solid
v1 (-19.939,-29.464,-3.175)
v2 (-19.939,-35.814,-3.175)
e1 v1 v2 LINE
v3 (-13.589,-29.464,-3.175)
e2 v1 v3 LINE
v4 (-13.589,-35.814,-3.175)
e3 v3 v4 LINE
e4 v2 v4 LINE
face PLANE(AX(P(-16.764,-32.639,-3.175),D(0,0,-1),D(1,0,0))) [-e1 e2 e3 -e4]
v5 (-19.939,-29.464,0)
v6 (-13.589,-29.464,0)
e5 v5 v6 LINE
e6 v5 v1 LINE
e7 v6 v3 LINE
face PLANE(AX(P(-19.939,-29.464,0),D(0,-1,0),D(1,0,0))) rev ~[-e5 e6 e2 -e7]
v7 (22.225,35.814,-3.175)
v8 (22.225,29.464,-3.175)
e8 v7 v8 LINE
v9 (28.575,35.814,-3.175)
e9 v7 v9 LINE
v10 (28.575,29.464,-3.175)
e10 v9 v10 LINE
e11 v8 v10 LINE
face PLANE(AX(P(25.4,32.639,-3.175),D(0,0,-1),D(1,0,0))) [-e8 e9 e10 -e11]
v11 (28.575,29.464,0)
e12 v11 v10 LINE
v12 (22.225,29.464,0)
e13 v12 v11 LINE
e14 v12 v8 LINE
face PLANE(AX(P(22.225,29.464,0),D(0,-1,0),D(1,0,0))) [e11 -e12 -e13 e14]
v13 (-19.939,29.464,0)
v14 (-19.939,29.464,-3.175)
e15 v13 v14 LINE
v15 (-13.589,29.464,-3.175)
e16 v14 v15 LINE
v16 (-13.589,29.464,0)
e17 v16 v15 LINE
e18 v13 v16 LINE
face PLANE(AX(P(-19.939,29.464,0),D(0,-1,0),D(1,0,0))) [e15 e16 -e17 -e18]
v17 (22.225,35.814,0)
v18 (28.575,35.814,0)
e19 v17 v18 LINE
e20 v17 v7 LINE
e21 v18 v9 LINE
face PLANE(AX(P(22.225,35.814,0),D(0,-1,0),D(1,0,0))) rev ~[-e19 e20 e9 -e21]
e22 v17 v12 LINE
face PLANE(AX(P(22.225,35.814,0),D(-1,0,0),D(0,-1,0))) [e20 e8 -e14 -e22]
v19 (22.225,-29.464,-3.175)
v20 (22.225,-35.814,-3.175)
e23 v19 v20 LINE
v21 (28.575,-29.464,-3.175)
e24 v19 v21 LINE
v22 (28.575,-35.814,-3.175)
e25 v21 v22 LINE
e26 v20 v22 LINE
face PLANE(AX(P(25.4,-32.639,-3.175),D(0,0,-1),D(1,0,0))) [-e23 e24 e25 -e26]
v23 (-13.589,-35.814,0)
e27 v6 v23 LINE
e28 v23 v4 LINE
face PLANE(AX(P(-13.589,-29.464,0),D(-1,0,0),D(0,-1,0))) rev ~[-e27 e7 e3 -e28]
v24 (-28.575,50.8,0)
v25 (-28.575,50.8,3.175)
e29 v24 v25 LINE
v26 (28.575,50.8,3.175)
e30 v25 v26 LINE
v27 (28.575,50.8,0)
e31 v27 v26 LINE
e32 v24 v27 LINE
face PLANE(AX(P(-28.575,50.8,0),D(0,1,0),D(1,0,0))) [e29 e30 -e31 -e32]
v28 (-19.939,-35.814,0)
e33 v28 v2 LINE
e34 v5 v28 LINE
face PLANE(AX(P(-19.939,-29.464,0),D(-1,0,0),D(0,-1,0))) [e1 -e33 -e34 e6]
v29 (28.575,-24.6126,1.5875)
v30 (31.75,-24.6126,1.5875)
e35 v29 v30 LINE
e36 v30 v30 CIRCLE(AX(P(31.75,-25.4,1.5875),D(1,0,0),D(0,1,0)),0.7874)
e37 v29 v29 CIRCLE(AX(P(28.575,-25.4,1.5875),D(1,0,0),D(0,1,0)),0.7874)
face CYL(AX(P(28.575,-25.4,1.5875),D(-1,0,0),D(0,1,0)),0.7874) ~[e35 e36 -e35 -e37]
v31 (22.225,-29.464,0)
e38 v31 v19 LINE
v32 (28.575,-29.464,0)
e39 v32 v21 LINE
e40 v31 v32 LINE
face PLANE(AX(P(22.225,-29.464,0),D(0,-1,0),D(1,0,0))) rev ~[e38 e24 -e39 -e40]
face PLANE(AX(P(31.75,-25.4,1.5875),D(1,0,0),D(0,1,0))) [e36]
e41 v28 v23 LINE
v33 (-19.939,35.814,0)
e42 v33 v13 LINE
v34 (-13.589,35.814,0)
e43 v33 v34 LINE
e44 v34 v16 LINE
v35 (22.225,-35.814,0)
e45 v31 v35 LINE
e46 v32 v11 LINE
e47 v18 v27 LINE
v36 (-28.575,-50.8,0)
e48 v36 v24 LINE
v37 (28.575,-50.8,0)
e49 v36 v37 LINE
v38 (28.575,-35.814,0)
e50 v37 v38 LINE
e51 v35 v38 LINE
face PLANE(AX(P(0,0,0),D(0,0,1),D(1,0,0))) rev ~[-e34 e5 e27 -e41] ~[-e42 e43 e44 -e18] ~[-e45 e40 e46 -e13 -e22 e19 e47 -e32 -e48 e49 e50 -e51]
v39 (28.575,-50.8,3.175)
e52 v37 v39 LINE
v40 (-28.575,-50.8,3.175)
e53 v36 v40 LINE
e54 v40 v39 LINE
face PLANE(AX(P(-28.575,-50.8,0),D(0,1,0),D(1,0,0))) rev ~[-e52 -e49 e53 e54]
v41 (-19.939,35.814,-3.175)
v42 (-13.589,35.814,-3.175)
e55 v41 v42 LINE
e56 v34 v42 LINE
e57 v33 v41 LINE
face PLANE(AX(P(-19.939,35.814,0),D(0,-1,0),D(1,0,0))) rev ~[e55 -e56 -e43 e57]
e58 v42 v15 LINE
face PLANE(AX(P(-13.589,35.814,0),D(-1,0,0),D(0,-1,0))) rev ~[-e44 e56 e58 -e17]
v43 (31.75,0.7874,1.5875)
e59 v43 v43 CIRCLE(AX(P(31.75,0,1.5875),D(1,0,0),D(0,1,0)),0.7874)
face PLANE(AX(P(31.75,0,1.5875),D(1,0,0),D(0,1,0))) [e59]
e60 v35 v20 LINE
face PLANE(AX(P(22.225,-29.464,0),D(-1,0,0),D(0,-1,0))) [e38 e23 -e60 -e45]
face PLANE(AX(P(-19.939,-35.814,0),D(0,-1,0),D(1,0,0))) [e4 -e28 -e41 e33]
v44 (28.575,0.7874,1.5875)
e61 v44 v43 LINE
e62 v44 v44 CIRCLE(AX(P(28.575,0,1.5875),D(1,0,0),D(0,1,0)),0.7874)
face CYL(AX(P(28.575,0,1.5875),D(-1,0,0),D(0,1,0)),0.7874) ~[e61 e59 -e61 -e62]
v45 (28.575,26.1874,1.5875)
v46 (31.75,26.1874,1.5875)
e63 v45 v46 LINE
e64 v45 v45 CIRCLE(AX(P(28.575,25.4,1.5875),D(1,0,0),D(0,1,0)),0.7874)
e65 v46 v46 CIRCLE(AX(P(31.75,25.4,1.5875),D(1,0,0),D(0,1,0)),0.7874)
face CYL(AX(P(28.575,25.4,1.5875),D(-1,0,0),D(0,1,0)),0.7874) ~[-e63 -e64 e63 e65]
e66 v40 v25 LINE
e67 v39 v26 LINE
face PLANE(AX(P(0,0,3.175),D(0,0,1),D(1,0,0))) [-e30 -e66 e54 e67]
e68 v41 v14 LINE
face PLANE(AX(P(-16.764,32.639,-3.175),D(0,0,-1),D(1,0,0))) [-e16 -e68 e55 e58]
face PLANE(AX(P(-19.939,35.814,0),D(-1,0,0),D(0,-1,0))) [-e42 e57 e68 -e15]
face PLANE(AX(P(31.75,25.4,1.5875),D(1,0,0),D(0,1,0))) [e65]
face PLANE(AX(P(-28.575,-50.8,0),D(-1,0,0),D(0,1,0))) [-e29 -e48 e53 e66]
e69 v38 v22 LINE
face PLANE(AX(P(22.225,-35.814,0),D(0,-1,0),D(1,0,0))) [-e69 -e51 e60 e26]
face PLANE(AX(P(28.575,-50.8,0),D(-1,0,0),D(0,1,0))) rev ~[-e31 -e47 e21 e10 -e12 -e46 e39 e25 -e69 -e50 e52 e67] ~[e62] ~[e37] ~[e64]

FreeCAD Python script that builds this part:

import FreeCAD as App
import Part
import Sketcher
from FreeCAD import Vector
Q = App.Units.Quantity


def add_polygon(sketch, points):
    """Adds a closed chain of lines whose ends are joined by coincident constraints."""
    first, n = sketch.GeometryCount, len(points)
    for a, b in zip(points, points[1:] + points[:1]):
        sketch.addGeometry(Part.LineSegment(App.Vector(*a, 0), App.Vector(*b, 0)), False)
    for i in range(n):
        sketch.addConstraint(Sketcher.Constraint("Coincident", first + i, 2, first + (i + 1) % n, 1))

doc = App.newDocument("Part")
body = doc.addObject("PartDesign::Body", "Body")

# Sketch on XY plane
sketch1 = body.newObject("Sketcher::SketchObject", "Sketch")
sketch1.AttachmentSupport = (doc.getObject("XY_Plane"), [""])
sketch1.MapMode = "FlatFace"
add_polygon(sketch1, [(-29, 51), (-29, -51), (29, -51), (29, 51)])  # lines 0-3
sketch1.addConstraint(Sketcher.Constraint("Vertical", 0))
sketch1.addConstraint(Sketcher.Constraint("Horizontal", 1))
sketch1.addConstraint(Sketcher.Constraint("Vertical", 2))
sketch1.addConstraint(Sketcher.Constraint("Horizontal", 3))
sketch1.addConstraint(Sketcher.Constraint("Symmetric", 0, 2, 2, 2, -1, 1))
sketch1.addConstraint(Sketcher.Constraint("DistanceY", 0, 2, 0, 1, Q("4 in")))
sketch1.addConstraint(Sketcher.Constraint("DistanceX", 1, 1, 1, 2, Q("2.25 in")))
pad1 = body.newObject("PartDesign::Pad", "Pad")
pad1.Profile = sketch1
pad1.Length = Q("0.125 in")

# Sketch on YZ plane
sketch2 = body.newObject("Sketcher::SketchObject", "Sketch001")
sketch2.AttachmentSupport = (doc.getObject("YZ_Plane"), [""])
sketch2.MapMode = "FlatFace"
sketch2.AttachmentOffset = App.Placement(Vector(0, 0, 1.125 * 25.4), App.Rotation())
sketch2.addGeometry(Part.Circle(Vector(0, 1.6, 0), Vector(0, 0, 1), 0.8), False)
sketch2.addGeometry(Part.Circle(Vector(25.4, 1.6, 0), Vector(0, 0, 1), 0.8), False)
sketch2.addGeometry(Part.Circle(Vector(-25.4, 1.6, 0), Vector(0, 0, 1), 0.8), False)
sketch2.addConstraint(Sketcher.Constraint("Equal", 0, 1))
sketch2.addConstraint(Sketcher.Constraint("Equal", 1, 2))
sketch2.addConstraint(Sketcher.Constraint("Symmetric", 1, 3, 2, 3, -2))
sketch2.addConstraint(Sketcher.Constraint("PointOnObject", 0, 3, -2))
sketch2.addConstraint(Sketcher.Constraint("Horizontal", 0, 3, 1, 3))
sketch2.addConstraint(Sketcher.Constraint("Diameter", 0, Q("0.062 in")))
sketch2.addConstraint(Sketcher.Constraint("DistanceX", -1, 1, 1, 3, Q("1 in")))
sketch2.addConstraint(Sketcher.Constraint("DistanceY", -1, 1, 0, 3, Q("0.0625 in")))
pad2 = body.newObject("PartDesign::Pad", "Pad001")
pad2.Profile = sketch2
pad2.Length = Q("0.125 in")

# Sketch on XY plane
sketch3 = body.newObject("Sketcher::SketchObject", "Sketch002")
sketch3.AttachmentSupport = (doc.getObject("XY_Plane"), [""])
sketch3.MapMode = "FlatFace"
add_polygon(sketch3, [(-20, -36), (-20, -29), (-14, -29), (-14, -36)])  # lines 0-3
add_polygon(sketch3, [(-20, 29), (-20, 36), (-14, 36), (-14, 29)])  # lines 4-7
add_polygon(sketch3, [(22, 29), (22, 36), (29, 36), (29, 29)])  # lines 8-11
add_polygon(sketch3, [(22, -36), (22, -29), (29, -29), (29, -36)])  # lines 12-15
sketch3.addConstraint(Sketcher.Constraint("Vertical", 0))
sketch3.addConstraint(Sketcher.Constraint("Horizontal", 1))
sketch3.addConstraint(Sketcher.Constraint("Vertical", 2))
sketch3.addConstraint(Sketcher.Constraint("Horizontal", 3))
sketch3.addConstraint(Sketcher.Constraint("Vertical", 4))
sketch3.addConstraint(Sketcher.Constraint("Horizontal", 5))
sketch3.addConstraint(Sketcher.Constraint("Vertical", 6))
sketch3.addConstraint(Sketcher.Constraint("Horizontal", 7))
sketch3.addConstraint(Sketcher.Constraint("Vertical", 8))
sketch3.addConstraint(Sketcher.Constraint("Horizontal", 9))
sketch3.addConstraint(Sketcher.Constraint("Vertical", 10))
sketch3.addConstraint(Sketcher.Constraint("Horizontal", 11))
sketch3.addConstraint(Sketcher.Constraint("Vertical", 12))
sketch3.addConstraint(Sketcher.Constraint("Horizontal", 13))
sketch3.addConstraint(Sketcher.Constraint("Vertical", 14))
sketch3.addConstraint(Sketcher.Constraint("Horizontal", 15))
sketch3.addConstraint(Sketcher.Constraint("Symmetric", 3, 2, 4, 2, -1))
sketch3.addConstraint(Sketcher.Constraint("Symmetric", 1, 2, 6, 2, -1))
sketch3.addConstraint(Sketcher.Constraint("Symmetric", 11, 2, 12, 2, -1))
sketch3.addConstraint(Sketcher.Constraint("Symmetric", 9, 2, 14, 2, -1))
sketch3.addConstraint(Sketcher.Constraint("Horizontal", 5, 2, 8, 2))
sketch3.addConstraint(Sketcher.Constraint("Horizontal", 7, 2, 10, 2))
sketch3.addConstraint(Sketcher.Constraint("Equal", 7, 9))
sketch3.addConstraint(Sketcher.Constraint("Equal", 15, 0))
sketch3.addConstraint(Sketcher.Constraint("DistanceX", 1, 1, 1, 2, Q("0.25 in")))
sketch3.addConstraint(Sketcher.Constraint("DistanceY", 0, 2, -1, 1, Q("1.16 in")))
sketch3.addConstraint(Sketcher.Constraint("DistanceX", 5, 2, 8, 2, Q("1.41 in")))
sketch3.addConstraint(Sketcher.Constraint("DistanceX", 0, 2, -1, 1, Q("0.785 in")))
pad3 = body.newObject("PartDesign::Pad", "Pad002")
pad3.Profile = sketch3
pad3.Length = Q("0.125 in")
pad3.Reversed = True

doc.recompute()
